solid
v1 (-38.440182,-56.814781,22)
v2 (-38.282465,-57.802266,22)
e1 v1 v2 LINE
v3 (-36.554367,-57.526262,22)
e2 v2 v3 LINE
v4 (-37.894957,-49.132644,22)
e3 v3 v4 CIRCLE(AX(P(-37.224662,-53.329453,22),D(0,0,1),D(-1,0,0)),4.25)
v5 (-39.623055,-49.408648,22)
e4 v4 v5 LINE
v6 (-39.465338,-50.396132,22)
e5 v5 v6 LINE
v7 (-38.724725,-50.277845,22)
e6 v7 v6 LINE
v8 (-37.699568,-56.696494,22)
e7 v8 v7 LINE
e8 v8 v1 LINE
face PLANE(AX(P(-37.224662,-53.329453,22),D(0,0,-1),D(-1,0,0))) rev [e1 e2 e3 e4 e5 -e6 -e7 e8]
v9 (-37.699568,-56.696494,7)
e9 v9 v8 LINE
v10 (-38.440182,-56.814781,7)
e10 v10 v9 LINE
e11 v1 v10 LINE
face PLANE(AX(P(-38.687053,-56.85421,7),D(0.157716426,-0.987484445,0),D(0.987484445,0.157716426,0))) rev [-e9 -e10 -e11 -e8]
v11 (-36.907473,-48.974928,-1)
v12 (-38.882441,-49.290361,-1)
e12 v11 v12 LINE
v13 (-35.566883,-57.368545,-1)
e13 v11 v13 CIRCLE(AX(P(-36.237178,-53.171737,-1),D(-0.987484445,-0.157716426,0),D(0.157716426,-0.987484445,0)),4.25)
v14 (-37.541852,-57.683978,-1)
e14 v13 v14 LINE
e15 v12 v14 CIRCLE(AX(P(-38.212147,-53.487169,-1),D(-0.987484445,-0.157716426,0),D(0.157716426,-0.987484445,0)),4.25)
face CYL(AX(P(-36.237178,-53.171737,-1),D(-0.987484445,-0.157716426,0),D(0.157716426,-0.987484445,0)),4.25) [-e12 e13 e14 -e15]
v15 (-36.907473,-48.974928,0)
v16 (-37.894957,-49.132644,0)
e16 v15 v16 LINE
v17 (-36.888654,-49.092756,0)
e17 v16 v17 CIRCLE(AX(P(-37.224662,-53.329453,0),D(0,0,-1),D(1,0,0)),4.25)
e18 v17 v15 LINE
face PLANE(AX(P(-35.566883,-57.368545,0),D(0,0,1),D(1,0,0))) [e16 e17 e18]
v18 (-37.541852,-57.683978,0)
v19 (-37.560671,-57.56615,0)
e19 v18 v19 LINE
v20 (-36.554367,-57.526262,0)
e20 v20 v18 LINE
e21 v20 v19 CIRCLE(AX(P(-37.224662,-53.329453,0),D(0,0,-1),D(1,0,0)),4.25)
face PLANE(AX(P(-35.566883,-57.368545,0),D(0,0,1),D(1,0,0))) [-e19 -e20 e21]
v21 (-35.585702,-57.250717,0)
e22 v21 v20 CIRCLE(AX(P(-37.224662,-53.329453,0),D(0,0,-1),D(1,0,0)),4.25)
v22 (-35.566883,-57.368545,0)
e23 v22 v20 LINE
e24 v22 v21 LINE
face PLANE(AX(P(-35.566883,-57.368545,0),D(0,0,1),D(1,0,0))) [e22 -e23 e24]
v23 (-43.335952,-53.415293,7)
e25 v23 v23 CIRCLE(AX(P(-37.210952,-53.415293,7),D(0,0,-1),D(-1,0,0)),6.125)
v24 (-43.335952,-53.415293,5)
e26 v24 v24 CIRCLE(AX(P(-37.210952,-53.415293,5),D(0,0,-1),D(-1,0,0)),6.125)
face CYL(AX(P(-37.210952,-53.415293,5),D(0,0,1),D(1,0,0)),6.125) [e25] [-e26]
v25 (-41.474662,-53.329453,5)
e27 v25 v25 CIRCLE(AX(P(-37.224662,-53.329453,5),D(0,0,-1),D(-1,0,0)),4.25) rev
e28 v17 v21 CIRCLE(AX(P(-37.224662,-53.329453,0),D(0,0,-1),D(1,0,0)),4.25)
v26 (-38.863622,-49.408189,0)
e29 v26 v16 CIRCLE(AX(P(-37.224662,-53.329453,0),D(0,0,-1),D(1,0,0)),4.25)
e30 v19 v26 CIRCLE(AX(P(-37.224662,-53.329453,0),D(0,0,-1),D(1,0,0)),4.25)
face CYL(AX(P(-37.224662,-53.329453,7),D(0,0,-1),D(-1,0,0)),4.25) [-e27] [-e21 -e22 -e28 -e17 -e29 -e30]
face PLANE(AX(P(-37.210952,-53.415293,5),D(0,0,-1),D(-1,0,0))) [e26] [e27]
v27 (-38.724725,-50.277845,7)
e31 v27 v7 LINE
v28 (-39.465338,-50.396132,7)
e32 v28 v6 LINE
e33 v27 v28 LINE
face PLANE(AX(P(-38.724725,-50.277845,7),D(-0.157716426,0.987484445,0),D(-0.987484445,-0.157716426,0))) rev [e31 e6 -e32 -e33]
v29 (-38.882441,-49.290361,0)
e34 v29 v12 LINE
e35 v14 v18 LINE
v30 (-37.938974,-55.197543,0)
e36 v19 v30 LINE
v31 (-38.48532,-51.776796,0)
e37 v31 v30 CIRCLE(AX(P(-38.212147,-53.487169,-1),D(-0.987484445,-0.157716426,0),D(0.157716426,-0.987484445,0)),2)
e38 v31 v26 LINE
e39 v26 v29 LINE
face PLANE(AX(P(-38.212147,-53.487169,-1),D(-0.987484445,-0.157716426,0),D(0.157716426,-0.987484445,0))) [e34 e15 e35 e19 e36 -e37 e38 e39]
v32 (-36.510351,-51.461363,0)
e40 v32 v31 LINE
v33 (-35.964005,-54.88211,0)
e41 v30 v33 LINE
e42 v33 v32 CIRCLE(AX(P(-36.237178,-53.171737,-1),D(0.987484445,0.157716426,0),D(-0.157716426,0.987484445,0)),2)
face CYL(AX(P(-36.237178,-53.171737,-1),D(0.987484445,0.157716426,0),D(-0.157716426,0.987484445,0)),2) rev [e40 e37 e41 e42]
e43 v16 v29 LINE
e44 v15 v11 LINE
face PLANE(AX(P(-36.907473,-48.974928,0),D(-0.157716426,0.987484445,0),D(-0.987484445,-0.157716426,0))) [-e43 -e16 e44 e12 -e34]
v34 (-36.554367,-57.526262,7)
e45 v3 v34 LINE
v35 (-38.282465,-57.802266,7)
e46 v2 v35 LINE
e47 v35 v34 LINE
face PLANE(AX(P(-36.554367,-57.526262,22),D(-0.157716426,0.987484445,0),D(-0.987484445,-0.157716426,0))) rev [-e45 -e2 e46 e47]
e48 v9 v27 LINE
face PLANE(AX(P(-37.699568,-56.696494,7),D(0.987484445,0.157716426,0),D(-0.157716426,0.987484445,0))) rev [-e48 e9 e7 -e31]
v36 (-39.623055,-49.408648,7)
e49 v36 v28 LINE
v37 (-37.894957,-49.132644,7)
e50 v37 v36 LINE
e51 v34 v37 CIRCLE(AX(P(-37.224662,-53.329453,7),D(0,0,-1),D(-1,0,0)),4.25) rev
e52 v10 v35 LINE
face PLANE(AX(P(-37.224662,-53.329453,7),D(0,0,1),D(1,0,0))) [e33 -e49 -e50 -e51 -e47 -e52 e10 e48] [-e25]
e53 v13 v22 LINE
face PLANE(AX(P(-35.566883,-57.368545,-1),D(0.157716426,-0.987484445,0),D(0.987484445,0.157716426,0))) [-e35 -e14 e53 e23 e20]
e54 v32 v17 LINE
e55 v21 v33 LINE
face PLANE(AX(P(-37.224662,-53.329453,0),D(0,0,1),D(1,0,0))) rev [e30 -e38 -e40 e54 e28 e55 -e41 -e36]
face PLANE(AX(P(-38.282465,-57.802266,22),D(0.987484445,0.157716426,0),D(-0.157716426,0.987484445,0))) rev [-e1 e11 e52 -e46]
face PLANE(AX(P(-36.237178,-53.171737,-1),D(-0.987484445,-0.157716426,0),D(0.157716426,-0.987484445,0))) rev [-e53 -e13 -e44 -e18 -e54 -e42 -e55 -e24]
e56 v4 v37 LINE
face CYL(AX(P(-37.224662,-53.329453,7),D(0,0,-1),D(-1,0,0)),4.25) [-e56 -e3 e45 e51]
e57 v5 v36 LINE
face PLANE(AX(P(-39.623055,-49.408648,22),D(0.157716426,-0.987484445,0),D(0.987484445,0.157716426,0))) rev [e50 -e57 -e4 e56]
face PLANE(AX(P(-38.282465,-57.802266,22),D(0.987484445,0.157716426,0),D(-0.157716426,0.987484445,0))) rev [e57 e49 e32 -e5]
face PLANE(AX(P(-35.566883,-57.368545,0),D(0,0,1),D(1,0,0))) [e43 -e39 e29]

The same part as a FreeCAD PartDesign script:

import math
import FreeCAD as App
import Part
import Sketcher
from FreeCAD import Vector


def add_polygon(sketch, points):
    """Adds a closed chain of lines whose ends are joined by coincident constraints."""
    first, n = sketch.GeometryCount, len(points)
    for a, b in zip(points, points[1:] + points[:1]):
        sketch.addGeometry(Part.LineSegment(App.Vector(*a, 0), App.Vector(*b, 0)), False)
    for i in range(n):
        sketch.addConstraint(Sketcher.Constraint("Coincident", first + i, 2, first + (i + 1) % n, 1))

doc = App.newDocument("Part")
params = doc.addObject("Spreadsheet::Sheet", "Params")
for row, (alias, value) in enumerate([
    ("sketch1_height", "1 mm"),
    ("sketch1_radius", "4.25 mm"),
    ("pad1_length", "2 mm"),
    ("sketch2_diameter", "4 mm"),
    ("hole_diameter", "4 mm"),
    ("hole_depth", "3.323811 mm"),
    ("sketch3_diameter", "8.5 mm"),
    ("pad2_length", "7 mm"),
    ("sketch4_radius", "4.25 mm"),
    ("sketch4_length", "1.75 mm"),
    ("pad3_length", "15 mm"),
    ("sketch5_length", "1 mm"),
    ("sketch5_length2", "6.5 mm"),
    ("pocket1_length", "15 mm"),
    ("sketch6_diameter", "12.25 mm"),
    ("pad4_length", "2 mm"),
], start=1):
    params.set(f"A{row}", alias)
    params.set(f"B{row}", "=" + value)
    params.setAlias(f"B{row}", alias)

body = doc.addObject("PartDesign::Body", "Body")

# Sketch on an angled plane
sketch1 = body.newObject("Sketcher::SketchObject", "Sketch")
sketch1.Placement = App.Placement(Vector(-45.591866, -7.281721, 0), App.Rotation(Vector(0.157716426, -0.987484445, 0), Vector(0, 0, 1), Vector(-0.987484445, -0.157716426, 0), "ZXY"))
sketch1.addGeometry(Part.LineSegment(Vector(51, 0, 0), Vector(42.5, 0, 0)), False)
sketch1.addGeometry(Part.LineSegment(Vector(42.5, 0, 0), Vector(42.5, -1, 0)), False)
sketch1.addGeometry(Part.ArcOfCircle(Part.Circle(Vector(46.8, -1, 0), Vector(0, 0, 1), 4.2), math.radians(180), math.radians(360)), False)
sketch1.addGeometry(Part.LineSegment(Vector(51, -1, 0), Vector(51, 0, 0)), False)
sketch1.addConstraint(Sketcher.Constraint("Coincident", 0, 2, 1, 1))
sketch1.addConstraint(Sketcher.Constraint("Tangent", 1, 2, 2, 1))
sketch1.addConstraint(Sketcher.Constraint("Tangent", 2, 2, 3, 1))
sketch1.addConstraint(Sketcher.Constraint("Coincident", 3, 2, 0, 1))
sketch1.addConstraint(Sketcher.Constraint("Horizontal", 0))
sketch1.addConstraint(Sketcher.Constraint("Vertical", 1))
sketch1.addConstraint(Sketcher.Constraint("Vertical", 3))
sketch1.addConstraint(Sketcher.Constraint("PointOnObject", 0, 2, -1))
sketch1.addConstraint(Sketcher.Constraint("DistanceY", 1, 2, 1, 1, 1.0))
sketch1.addConstraint(Sketcher.Constraint("Radius", 2, 4.25))
sketch1.addConstraint(Sketcher.Constraint("DistanceX", -1, 1, 2, 3, 46.791065))
sketch1.setExpression("Constraints[8]", "Params.sketch1_height")
sketch1.setExpression("Constraints[9]", "Params.sketch1_radius")
pad1 = body.newObject("PartDesign::Pad", "Pad")
pad1.Profile = sketch1
pad1.setExpression("Length", "Params.pad1_length")
pad1.Reversed = True

# Sketch on an angled plane
sketch2 = body.newObject("Sketcher::SketchObject", "Sketch001")
sketch2.Placement = App.Placement(Vector(-43.616897, -6.966288, 0), App.Rotation(Vector(0, 0, -1), Vector(-0.157716426, 0.987484445, 0), Vector(0.987484445, 0.157716426, 0), "ZXY"))
sketch2.addGeometry(Part.Circle(Vector(1, -46.8, 0), Vector(0, 0, 1), 2), False)
sketch2.addConstraint(Sketcher.Constraint("Diameter", 0, 4.0))
sketch2.addConstraint(Sketcher.Constraint("DistanceX", -1, 1, 0, 3, 1.0))
sketch2.addConstraint(Sketcher.Constraint("DistanceY", 0, 3, -1, 1, 46.791065))
sketch2.setExpression("Constraints[0]", "Params.sketch2_diameter")
doc.recompute()
hole = body.newObject("PartDesign::Hole", "Hole")
hole.Profile = sketch2
hole.ThreadType = "None"
hole.setExpression("Diameter", "Params.hole_diameter")
hole.DepthType = "Dimension"
hole.setExpression("Depth", "Params.hole_depth")
hole.DrillPoint = "Flat"

# Sketch on XY plane
sketch3 = body.newObject("Sketcher::SketchObject", "Sketch002")
sketch3.AttachmentSupport = (doc.getObject("XY_Plane"), [""])
sketch3.MapMode = "FlatFace"
sketch3.addGeometry(Part.Circle(Vector(-37.2, -53.3, 0), Vector(0, 0, 1), 4.2), False)
sketch3.addConstraint(Sketcher.Constraint("Diameter", 0, 8.5))
sketch3.addConstraint(Sketcher.Constraint("DistanceX", 0, 3, -1, 1, 37.224662))
sketch3.addConstraint(Sketcher.Constraint("DistanceY", 0, 3, -1, 1, 53.329453))
sketch3.setExpression("Constraints[0]", "Params.sketch3_diameter")
pad2 = body.newObject("PartDesign::Pad", "Pad001")
pad2.Profile = sketch3
pad2.setExpression("Length", "Params.pad2_length")

# Sketch on XY plane
sketch4 = body.newObject("Sketcher::SketchObject", "Sketch003")
sketch4.AttachmentSupport = (doc.getObject("XY_Plane"), [""])
sketch4.MapMode = "FlatFace"
sketch4.AttachmentOffset = App.Placement(Vector(0, 0, 7), App.Rotation())
sketch4.addGeometry(Part.LineSegment(Vector(-37.9, -49.1, 0), Vector(-39.6, -49.4, 0)), False)
sketch4.addGeometry(Part.LineSegment(Vector(-39.6, -49.4, 0), Vector(-38.3, -57.8, 0)), False)
sketch4.addGeometry(Part.LineSegment(Vector(-38.3, -57.8, 0), Vector(-36.6, -57.5, 0)), False)
sketch4.addGeometry(Part.ArcOfCircle(Part.Circle(Vector(-37.2, -53.3, 0), Vector(0, 0, 1), 4.2), math.radians(-81), math.radians(99)), False)
sketch4.addConstraint(Sketcher.Constraint("Coincident", 0, 2, 1, 1))
sketch4.addConstraint(Sketcher.Constraint("Coincident", 1, 2, 2, 1))
sketch4.addConstraint(Sketcher.Constraint("Tangent", 2, 2, 3, 1))
sketch4.addConstraint(Sketcher.Constraint("Tangent", 3, 2, 0, 1))
sketch4.addConstraint(Sketcher.Constraint("Perpendicular", 0, 1))
sketch4.addConstraint(Sketcher.Constraint("Perpendicular", 1, 2))
sketch4.addConstraint(Sketcher.Constraint("Radius", 3, 4.25))
sketch4.addConstraint(Sketcher.Constraint("Distance", 0, 1.75))
sketch4.addConstraint(Sketcher.Constraint("DistanceY", 2, 2, -1, 1, 57.526262))
sketch4.addConstraint(Sketcher.Constraint("DistanceX", 0, 2, 1, 2, 1.34059))
sketch4.addConstraint(Sketcher.Constraint("DistanceX", 3, 3, -1, 1, 37.224662))
sketch4.setExpression("Constraints[6]", "Params.sketch4_radius")
sketch4.setExpression("Constraints[7]", "Params.sketch4_length")
pad3 = body.newObject("PartDesign::Pad", "Pad002")
pad3.Profile = sketch4
pad3.setExpression("Length", "Params.pad3_length")

# Sketch on XY plane
sketch5 = body.newObject("Sketcher::SketchObject", "Sketch004")
sketch5.AttachmentSupport = (doc.getObject("XY_Plane"), [""])
sketch5.MapMode = "FlatFace"
sketch5.AttachmentOffset = App.Placement(Vector(0, 0, 22), App.Rotation())
add_polygon(sketch5, [(-38.7, -50.3), (-39.7, -50.4), (-38.7, -56.9), (-37.7, -56.7)])  # lines 0-3
sketch5.addConstraint(Sketcher.Constraint("Perpendicular", 0, 1))
sketch5.addConstraint(Sketcher.Constraint("Perpendicular", 1, 2))
sketch5.addConstraint(Sketcher.Constraint("Perpendicular", 2, 3))
sketch5.addConstraint(Sketcher.Constraint("Distance", 0, 1.0))
sketch5.addConstraint(Sketcher.Constraint("Distance", 1, 6.5))
sketch5.addConstraint(Sketcher.Constraint("DistanceX", 0, 2, -1, 1, 39.712209))
sketch5.addConstraint(Sketcher.Constraint("DistanceY", 0, 2, -1, 1, 50.435561))
sketch5.addConstraint(Sketcher.Constraint("DistanceY", 1, 2, -1, 1, 56.85421))
sketch5.setExpression("Constraints[7]", "Params.sketch5_length")
sketch5.setExpression("Constraints[8]", "Params.sketch5_length2")
pocket1 = body.newObject("PartDesign::Pocket", "Pocket")
pocket1.Profile = sketch5
pocket1.setExpression("Length", "Params.pocket1_length")

# Sketch on XY plane
sketch6 = body.newObject("Sketcher::SketchObject", "Sketch005")
sketch6.AttachmentSupport = (doc.getObject("XY_Plane"), [""])
sketch6.MapMode = "FlatFace"
sketch6.AttachmentOffset = App.Placement(Vector(0, 0, 7), App.Rotation())
sketch6.addGeometry(Part.Circle(Vector(-37, -53, 0), Vector(0, 0, 1), 6), False)
sketch6.addConstraint(Sketcher.Constraint("Diameter", 0, 12.25))
sketch6.addConstraint(Sketcher.Constraint("DistanceX", 0, 3, -1, 1, 37.210952))
sketch6.addConstraint(Sketcher.Constraint("DistanceY", 0, 3, -1, 1, 53.415293))
sketch6.setExpression("Constraints[0]", "Params.sketch6_diameter")
pad4 = body.newObject("PartDesign::Pad", "Pad003")
pad4.Profile = sketch6
pad4.setExpression("Length", "Params.pad4_length")
pad4.Reversed = True

doc.recompute()
